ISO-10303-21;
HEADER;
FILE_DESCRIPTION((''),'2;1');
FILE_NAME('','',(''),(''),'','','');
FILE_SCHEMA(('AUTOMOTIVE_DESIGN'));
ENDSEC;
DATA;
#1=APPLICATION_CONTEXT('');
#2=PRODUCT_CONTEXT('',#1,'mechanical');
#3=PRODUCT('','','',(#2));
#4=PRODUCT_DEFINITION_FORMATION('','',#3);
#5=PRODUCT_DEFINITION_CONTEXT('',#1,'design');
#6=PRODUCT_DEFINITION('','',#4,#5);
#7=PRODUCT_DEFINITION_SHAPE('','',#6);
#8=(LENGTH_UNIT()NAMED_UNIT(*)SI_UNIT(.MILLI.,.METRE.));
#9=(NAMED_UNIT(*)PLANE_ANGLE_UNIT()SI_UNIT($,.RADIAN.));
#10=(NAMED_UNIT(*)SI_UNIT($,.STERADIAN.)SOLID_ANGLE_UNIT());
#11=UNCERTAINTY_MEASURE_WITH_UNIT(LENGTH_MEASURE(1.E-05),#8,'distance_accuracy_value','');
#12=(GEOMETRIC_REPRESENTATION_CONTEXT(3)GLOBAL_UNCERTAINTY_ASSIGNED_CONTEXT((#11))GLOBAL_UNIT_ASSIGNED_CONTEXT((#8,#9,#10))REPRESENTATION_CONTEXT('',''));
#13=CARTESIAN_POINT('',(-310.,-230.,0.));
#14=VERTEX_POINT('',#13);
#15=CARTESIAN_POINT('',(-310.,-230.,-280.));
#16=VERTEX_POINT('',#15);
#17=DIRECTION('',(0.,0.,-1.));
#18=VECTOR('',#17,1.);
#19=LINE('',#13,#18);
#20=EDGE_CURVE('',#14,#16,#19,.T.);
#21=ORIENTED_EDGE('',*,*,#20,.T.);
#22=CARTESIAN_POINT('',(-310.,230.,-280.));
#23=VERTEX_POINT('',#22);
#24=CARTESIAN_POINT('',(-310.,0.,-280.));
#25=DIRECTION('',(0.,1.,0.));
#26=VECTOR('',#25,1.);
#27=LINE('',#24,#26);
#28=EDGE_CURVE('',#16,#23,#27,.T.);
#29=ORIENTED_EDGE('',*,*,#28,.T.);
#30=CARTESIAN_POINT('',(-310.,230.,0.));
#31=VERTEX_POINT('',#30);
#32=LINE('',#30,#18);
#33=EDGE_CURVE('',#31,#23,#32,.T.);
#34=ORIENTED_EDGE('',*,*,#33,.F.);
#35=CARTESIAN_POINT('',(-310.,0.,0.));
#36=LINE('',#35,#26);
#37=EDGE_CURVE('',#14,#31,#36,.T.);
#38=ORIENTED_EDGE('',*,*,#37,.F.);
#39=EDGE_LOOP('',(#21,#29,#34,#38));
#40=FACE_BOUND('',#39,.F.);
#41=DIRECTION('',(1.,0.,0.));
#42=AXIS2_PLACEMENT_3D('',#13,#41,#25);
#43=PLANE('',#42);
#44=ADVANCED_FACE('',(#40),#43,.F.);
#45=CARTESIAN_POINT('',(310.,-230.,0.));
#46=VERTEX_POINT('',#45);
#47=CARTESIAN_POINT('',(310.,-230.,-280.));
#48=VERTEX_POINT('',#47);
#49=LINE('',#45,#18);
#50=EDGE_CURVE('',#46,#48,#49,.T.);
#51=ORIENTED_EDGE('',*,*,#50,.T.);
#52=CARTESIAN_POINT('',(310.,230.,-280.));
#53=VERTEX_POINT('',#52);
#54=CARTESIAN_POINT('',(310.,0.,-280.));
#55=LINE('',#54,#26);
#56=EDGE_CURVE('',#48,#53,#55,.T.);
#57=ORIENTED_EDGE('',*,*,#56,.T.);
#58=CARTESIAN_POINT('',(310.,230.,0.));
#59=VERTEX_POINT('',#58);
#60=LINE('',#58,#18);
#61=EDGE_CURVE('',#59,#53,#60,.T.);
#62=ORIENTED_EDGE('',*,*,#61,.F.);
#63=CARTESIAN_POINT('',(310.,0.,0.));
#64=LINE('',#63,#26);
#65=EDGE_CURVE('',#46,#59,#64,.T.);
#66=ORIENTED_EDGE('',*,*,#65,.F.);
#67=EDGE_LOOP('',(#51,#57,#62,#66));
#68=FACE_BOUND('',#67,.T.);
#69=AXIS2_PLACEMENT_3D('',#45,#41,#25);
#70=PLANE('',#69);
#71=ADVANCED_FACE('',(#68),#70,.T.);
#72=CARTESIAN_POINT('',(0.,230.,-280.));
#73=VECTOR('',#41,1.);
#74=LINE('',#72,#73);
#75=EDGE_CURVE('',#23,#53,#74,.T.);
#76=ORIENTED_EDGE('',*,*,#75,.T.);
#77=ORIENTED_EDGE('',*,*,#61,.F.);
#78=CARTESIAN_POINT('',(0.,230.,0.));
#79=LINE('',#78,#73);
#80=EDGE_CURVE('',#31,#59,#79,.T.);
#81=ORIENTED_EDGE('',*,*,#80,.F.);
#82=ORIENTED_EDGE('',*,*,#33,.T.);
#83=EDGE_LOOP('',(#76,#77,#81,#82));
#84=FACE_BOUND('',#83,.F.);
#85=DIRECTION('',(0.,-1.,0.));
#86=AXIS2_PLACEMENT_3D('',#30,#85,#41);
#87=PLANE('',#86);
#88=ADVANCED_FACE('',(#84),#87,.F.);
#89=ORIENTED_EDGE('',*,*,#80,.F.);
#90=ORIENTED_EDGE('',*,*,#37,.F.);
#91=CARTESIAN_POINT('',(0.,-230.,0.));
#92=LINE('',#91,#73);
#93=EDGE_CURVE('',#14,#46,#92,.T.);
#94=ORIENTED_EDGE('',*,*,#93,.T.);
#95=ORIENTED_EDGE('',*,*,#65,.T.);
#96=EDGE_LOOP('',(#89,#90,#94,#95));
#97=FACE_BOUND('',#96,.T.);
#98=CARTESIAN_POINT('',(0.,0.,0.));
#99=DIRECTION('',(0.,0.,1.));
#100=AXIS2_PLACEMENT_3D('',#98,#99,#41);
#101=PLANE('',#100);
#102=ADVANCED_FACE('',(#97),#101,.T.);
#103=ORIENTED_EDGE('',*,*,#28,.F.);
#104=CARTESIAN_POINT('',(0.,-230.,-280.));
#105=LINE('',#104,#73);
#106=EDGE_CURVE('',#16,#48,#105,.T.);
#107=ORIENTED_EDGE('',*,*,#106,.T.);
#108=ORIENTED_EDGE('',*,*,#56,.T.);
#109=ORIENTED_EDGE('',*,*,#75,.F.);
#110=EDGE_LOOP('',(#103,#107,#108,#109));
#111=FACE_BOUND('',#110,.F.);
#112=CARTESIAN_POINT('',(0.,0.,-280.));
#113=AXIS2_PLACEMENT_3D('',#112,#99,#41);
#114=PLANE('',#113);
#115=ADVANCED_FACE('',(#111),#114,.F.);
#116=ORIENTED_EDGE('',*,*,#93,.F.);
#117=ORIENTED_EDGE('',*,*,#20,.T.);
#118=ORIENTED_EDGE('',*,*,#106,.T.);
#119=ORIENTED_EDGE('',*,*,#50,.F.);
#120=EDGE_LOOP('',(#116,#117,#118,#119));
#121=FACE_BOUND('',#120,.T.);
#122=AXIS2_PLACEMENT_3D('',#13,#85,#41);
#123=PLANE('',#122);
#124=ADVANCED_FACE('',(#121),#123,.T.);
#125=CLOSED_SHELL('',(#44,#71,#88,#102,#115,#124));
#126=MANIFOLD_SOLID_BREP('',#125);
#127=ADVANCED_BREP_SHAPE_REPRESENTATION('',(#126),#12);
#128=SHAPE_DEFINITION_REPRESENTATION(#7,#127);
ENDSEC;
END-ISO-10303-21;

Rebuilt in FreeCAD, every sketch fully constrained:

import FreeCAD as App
import Part
import Sketcher

V = App.Vector


def add_polygon(sketch, points):
    """Adds a closed chain of lines whose ends are joined by coincident constraints."""
    first, n = sketch.GeometryCount, len(points)
    for a, b in zip(points, points[1:] + points[:1]):
        sketch.addGeometry(Part.LineSegment(App.Vector(*a, 0), App.Vector(*b, 0)), False)
    for i in range(n):
        sketch.addConstraint(Sketcher.Constraint("Coincident", first + i, 2, first + (i + 1) % n, 1))

doc = App.newDocument("Part")
params = doc.addObject("Spreadsheet::Sheet", "Params")
for row, (alias, value) in enumerate([
    ("sketch1_width", "620 mm"),
    ("sketch1_height", "460 mm"),
    ("pad1_length", "280 mm"),
], start=1):
    params.set(f"A{row}", alias)
    params.set(f"B{row}", "=" + value)
    params.setAlias(f"B{row}", alias)

body = doc.addObject("PartDesign::Body", "Body")

# Sketch on XY plane
sketch1 = body.newObject("Sketcher::SketchObject", "Sketch")
sketch1.AttachmentSupport = (doc.getObject("XY_Plane"), [""])
sketch1.MapMode = "FlatFace"
add_polygon(sketch1, [(-310, 230), (-310, -230), (310, -230), (310, 230)])  # lines 0-3
sketch1.addConstraint([
    Sketcher.Constraint("Vertical", 0),
    Sketcher.Constraint("Horizontal", 1),
    Sketcher.Constraint("Vertical", 2),
    Sketcher.Constraint("Horizontal", 3),
    Sketcher.Constraint("Symmetric", 0, 2, 2, 2, -1, 1),
    Sketcher.Constraint("DistanceX", 1, 1, 1, 2, 620.0),
    Sketcher.Constraint("DistanceY", 0, 2, 0, 1, 460.0),
])
sketch1.setExpression("Constraints[9]", "Params.sketch1_width")
sketch1.setExpression("Constraints[10]", "Params.sketch1_height")
pad1 = body.newObject("PartDesign::Pad", "Pad")
pad1.Profile = sketch1
pad1.setExpression("Length", "Params.pad1_length")
pad1.Reversed = True

doc.recompute()
